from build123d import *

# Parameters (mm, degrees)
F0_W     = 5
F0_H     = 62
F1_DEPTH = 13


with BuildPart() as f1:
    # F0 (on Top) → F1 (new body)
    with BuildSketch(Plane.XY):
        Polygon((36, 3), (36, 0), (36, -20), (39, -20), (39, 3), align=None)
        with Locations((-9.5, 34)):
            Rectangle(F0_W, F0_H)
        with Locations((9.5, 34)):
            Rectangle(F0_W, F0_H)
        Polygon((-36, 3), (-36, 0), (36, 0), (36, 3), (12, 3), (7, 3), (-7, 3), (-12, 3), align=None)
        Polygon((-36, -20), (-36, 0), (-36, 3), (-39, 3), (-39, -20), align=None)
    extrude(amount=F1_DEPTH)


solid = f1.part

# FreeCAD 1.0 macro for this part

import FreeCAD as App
import Part
import Sketcher

V = App.Vector
Q = App.Units.Quantity


def add_polygon(sketch, points):
    """Adds a closed chain of lines whose ends are joined by coincident constraints."""
    first, n = sketch.GeometryCount, len(points)
    for a, b in zip(points, points[1:] + points[:1]):
        sketch.addGeometry(Part.LineSegment(App.Vector(*a, 0), App.Vector(*b, 0)), False)
    for i in range(n):
        sketch.addConstraint(Sketcher.Constraint("Coincident", first + i, 2, first + (i + 1) % n, 1))

doc = App.newDocument("Part")
body = doc.addObject("PartDesign::Body", "Body")

# Sketch on XY plane
sketch1 = body.newObject("Sketcher::SketchObject", "Sketch")
sketch1.AttachmentSupport = (doc.getObject("XY_Plane"), [""])
sketch1.MapMode = "FlatFace"
add_polygon(sketch1, [(36, 0), (36, -20), (39, -20), (39, 3), (12, 3), (12, 65), (7, 65), (7, 3), (-7, 3), (-7, 65), (-12, 65), (-12, 3), (-39, 3), (-39, -20), (-36, -20), (-36, 0)])  # lines 0-15
sketch1.addConstraint(Sketcher.Constraint("Vertical", 0))
sketch1.addConstraint(Sketcher.Constraint("Horizontal", 1))
sketch1.addConstraint(Sketcher.Constraint("Vertical", 2))
sketch1.addConstraint(Sketcher.Constraint("Horizontal", 3))
sketch1.addConstraint(Sketcher.Constraint("Vertical", 4))
sketch1.addConstraint(Sketcher.Constraint("Horizontal", 5))
sketch1.addConstraint(Sketcher.Constraint("Vertical", 6))
sketch1.addConstraint(Sketcher.Constraint("Horizontal", 7))
sketch1.addConstraint(Sketcher.Constraint("Vertical", 8))
sketch1.addConstraint(Sketcher.Constraint("Horizontal", 9))
sketch1.addConstraint(Sketcher.Constraint("Vertical", 10))
sketch1.addConstraint(Sketcher.Constraint("Horizontal", 11))
sketch1.addConstraint(Sketcher.Constraint("Vertical", 12))
sketch1.addConstraint(Sketcher.Constraint("Horizontal", 13))
sketch1.addConstraint(Sketcher.Constraint("Vertical", 14))
sketch1.addConstraint(Sketcher.Constraint("Horizontal", 15))
sketch1.addConstraint(Sketcher.Constraint("Symmetric", 14, 2, 15, 2, -1, 1))
sketch1.addConstraint(Sketcher.Constraint("Symmetric", 5, 2, 8, 2, -2))
sketch1.addConstraint(Sketcher.Constraint("Symmetric", 3, 2, 10, 2, -2))
sketch1.addConstraint(Sketcher.Constraint("Symmetric", 1, 2, 12, 2, -2))
sketch1.addConstraint(Sketcher.Constraint("Horizontal", 3, 2, 6, 2))
sketch1.addConstraint(Sketcher.Constraint("DistanceX", 1, 1, 1, 2, Q("3 mm")))
sketch1.addConstraint(Sketcher.Constraint("DistanceX", 3, 2, 3, 1, Q("27 mm")))
sketch1.addConstraint(Sketcher.Constraint("DistanceX", 5, 2, 5, 1, Q("5 mm")))
sketch1.addConstraint(Sketcher.Constraint("DistanceX", 7, 2, 7, 1, Q("14 mm")))
sketch1.addConstraint(Sketcher.Constraint("DistanceY", 0, 2, 0, 1, Q("20 mm")))
sketch1.addConstraint(Sketcher.Constraint("DistanceY", 2, 1, 2, 2, Q("23 mm")))
sketch1.addConstraint(Sketcher.Constraint("DistanceY", 4, 1, 4, 2, Q("62 mm")))
pad1 = body.newObject("PartDesign::Pad", "Pad")
pad1.Profile = sketch1
pad1.Length = 13

doc.recompute()
